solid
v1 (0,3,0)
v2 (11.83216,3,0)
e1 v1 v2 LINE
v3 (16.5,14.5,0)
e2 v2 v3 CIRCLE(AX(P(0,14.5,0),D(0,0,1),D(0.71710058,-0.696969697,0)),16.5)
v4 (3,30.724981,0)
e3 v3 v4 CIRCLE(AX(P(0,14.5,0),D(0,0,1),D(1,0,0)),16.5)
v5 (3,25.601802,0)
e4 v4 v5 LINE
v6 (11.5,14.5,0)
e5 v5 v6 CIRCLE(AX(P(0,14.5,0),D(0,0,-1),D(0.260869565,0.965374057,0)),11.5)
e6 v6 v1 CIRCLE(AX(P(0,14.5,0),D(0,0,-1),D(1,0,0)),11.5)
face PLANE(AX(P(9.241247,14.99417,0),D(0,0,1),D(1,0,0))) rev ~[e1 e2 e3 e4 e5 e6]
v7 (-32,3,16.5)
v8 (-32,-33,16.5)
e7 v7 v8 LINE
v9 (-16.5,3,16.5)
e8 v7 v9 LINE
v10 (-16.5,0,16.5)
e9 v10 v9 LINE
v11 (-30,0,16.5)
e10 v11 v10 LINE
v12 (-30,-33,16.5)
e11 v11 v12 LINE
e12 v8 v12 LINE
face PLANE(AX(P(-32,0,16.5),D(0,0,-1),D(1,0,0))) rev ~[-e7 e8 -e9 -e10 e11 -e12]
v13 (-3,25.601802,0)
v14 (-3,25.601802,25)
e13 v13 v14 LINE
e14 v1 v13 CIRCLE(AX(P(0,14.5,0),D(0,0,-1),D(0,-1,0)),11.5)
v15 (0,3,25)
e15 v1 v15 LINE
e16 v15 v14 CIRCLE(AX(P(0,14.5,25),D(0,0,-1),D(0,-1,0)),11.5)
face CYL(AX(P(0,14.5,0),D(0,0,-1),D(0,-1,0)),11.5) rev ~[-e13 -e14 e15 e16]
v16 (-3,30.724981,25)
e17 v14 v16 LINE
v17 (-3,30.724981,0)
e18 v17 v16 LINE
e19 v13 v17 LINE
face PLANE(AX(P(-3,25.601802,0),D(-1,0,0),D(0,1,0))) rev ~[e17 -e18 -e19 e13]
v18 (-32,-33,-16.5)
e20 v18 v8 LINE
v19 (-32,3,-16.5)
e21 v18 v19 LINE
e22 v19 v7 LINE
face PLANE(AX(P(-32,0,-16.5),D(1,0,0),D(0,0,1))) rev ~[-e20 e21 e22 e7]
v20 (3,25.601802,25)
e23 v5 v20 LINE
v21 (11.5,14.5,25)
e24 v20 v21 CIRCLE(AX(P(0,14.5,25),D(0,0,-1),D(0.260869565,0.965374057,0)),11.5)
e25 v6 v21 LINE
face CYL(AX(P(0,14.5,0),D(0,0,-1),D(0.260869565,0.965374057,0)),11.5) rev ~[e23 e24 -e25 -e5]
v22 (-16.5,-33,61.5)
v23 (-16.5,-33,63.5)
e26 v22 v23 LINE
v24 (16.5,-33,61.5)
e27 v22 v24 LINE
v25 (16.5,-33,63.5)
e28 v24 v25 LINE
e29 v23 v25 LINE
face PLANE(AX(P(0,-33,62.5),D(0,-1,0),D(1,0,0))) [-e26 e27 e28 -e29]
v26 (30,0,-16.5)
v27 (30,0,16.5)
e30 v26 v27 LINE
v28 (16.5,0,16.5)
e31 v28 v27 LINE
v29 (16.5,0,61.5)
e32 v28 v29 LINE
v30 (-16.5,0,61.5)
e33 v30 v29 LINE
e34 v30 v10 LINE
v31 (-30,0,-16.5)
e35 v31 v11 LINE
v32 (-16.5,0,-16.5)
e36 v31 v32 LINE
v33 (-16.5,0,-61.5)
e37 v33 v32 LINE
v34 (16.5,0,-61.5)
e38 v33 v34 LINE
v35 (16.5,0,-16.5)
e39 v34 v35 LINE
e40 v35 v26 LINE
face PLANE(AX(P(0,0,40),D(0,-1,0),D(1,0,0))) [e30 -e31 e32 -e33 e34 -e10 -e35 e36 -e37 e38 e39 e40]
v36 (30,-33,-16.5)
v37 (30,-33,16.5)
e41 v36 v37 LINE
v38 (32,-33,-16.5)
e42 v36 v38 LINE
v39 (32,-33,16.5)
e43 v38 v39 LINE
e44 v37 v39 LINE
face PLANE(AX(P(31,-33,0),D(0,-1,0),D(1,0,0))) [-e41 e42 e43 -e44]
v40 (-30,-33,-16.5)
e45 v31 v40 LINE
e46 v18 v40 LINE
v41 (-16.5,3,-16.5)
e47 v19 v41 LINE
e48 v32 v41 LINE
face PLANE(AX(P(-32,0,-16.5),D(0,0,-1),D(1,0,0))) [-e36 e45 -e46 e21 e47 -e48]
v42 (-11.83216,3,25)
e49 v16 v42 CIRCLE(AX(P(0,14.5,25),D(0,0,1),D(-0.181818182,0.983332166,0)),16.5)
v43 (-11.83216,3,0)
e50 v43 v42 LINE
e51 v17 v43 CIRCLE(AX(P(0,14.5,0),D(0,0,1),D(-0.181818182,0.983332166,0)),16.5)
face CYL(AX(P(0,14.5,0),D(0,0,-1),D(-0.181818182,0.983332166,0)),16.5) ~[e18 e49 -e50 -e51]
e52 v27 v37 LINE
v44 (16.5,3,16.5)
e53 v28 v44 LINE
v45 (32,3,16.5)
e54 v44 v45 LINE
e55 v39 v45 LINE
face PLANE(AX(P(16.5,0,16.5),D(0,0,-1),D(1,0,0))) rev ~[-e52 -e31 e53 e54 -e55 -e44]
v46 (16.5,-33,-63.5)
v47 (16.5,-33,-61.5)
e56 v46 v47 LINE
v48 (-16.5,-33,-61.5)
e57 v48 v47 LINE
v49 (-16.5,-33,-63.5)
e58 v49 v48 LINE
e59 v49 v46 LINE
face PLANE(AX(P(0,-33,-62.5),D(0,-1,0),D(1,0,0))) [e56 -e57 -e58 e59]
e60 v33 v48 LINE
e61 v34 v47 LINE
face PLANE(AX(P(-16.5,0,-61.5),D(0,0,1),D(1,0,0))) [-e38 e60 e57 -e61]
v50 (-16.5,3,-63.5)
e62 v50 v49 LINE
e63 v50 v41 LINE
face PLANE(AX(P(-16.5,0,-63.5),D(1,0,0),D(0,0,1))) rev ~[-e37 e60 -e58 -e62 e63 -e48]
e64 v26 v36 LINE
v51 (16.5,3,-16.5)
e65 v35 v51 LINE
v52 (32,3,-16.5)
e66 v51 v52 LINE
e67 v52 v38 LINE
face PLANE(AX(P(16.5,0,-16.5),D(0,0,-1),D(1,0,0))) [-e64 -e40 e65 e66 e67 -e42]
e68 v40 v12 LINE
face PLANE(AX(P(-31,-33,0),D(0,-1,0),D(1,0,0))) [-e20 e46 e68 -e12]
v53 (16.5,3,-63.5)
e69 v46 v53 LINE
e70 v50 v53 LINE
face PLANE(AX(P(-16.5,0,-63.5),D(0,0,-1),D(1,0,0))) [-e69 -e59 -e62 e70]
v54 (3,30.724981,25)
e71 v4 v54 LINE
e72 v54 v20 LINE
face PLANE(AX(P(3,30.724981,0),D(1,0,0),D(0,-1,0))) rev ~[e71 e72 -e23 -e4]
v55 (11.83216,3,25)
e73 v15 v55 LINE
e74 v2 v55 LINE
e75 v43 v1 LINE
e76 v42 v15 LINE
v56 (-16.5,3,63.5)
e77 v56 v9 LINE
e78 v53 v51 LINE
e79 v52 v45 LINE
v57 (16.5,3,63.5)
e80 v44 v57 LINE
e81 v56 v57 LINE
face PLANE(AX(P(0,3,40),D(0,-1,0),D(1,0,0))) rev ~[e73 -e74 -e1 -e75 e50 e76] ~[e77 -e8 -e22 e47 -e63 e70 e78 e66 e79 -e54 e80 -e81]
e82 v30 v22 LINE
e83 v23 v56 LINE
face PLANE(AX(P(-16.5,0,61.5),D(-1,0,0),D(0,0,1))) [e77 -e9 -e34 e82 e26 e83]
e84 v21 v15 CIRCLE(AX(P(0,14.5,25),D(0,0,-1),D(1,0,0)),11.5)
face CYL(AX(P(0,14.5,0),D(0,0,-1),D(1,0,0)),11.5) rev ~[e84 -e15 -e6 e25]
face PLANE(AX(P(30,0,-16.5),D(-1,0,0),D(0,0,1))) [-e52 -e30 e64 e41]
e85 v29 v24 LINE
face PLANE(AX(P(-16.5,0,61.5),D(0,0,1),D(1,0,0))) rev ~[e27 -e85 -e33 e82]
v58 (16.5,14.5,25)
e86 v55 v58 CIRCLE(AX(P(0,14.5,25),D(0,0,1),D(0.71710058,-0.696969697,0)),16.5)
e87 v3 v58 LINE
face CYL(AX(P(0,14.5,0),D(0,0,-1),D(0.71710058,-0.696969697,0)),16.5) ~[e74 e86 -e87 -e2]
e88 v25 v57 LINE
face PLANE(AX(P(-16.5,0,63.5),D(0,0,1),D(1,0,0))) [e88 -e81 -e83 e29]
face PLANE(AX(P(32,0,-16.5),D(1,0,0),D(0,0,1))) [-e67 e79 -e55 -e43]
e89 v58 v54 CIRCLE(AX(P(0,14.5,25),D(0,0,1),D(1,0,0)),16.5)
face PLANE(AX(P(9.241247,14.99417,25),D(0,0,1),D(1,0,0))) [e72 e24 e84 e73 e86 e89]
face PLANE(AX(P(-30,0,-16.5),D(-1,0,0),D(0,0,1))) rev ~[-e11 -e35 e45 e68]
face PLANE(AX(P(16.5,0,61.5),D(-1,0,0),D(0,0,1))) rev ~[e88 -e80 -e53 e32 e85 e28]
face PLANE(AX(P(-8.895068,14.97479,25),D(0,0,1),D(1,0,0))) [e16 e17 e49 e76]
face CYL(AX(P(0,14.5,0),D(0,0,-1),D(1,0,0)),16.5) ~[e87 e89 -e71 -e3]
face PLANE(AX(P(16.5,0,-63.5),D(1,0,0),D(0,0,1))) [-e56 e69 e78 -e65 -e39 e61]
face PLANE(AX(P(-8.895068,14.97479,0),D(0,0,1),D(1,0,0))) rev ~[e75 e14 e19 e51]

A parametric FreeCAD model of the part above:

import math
import FreeCAD as App
import Part
import Sketcher

V = App.Vector


def add_polygon(sketch, points):
    """Adds a closed chain of lines whose ends are joined by coincident constraints."""
    first, n = sketch.GeometryCount, len(points)
    for a, b in zip(points, points[1:] + points[:1]):
        sketch.addGeometry(Part.LineSegment(App.Vector(*a, 0), App.Vector(*b, 0)), False)
    for i in range(n):
        sketch.addConstraint(Sketcher.Constraint("Coincident", first + i, 2, first + (i + 1) % n, 1))

doc = App.newDocument("Part")
body = doc.addObject("PartDesign::Body", "Body")

# Sketch on XZ plane
sketch1 = doc.addObject("Sketcher::SketchObject", "Sketch")
body.addObject(sketch1)
sketch1.AttachmentSupport = (doc.XZ_Plane, [""])
sketch1.MapMode = "FlatFace"
add_polygon(sketch1, [(-16, 64), (-16, 16), (-32, 16), (-32, -16), (-16, -16), (-16, -64), (16, -64), (16, -16), (32, -16), (32, 16), (16, 16), (16, 64)])  # lines 0-11
sketch1.addConstraint([
    Sketcher.Constraint("Vertical", 0),
    Sketcher.Constraint("Horizontal", 1),
    Sketcher.Constraint("Vertical", 2),
    Sketcher.Constraint("Horizontal", 3),
    Sketcher.Constraint("Vertical", 4),
    Sketcher.Constraint("Horizontal", 5),
    Sketcher.Constraint("Vertical", 6),
    Sketcher.Constraint("Horizontal", 7),
    Sketcher.Constraint("Vertical", 8),
    Sketcher.Constraint("Horizontal", 9),
    Sketcher.Constraint("Vertical", 10),
    Sketcher.Constraint("Horizontal", 11),
    Sketcher.Constraint("Symmetric", 0, 2, 6, 2, -1, 1),
    Sketcher.Constraint("Symmetric", 2, 2, 8, 2, -1, 1),
    Sketcher.Constraint("Symmetric", 4, 2, 10, 2, -1, 1),
    Sketcher.Constraint("Symmetric", 3, 2, 6, 2, -2),
    Sketcher.Constraint("Equal", 11, 2),
    Sketcher.Constraint("DistanceX", 5, 1, 5, 2, 33.0),
    Sketcher.Constraint("DistanceY", 0, 2, 0, 1, 47.0),
    Sketcher.Constraint("DistanceX", 1, 2, 1, 1, 15.5),
])
pad1 = doc.addObject("PartDesign::Pad", "Pad")
body.addObject(pad1)
pad1.Profile = sketch1
pad1.Length = 3
pad1.Reversed = True

# Sketch on XZ plane
sketch2 = doc.addObject("Sketcher::SketchObject", "Sketch001")
body.addObject(sketch2)
sketch2.AttachmentSupport = (doc.XZ_Plane, [""])
sketch2.MapMode = "FlatFace"
add_polygon(sketch2, [(-16.5, 63.5), (-16.5, 61.5), (16.5, 61.5), (16.5, 63.5)])  # lines 0-3
add_polygon(sketch2, [(-32, 16.5), (-32, -16.5), (-30, -16.5), (-30, 16.5)])  # lines 4-7
add_polygon(sketch2, [(-16.5, -61.5), (-16.5, -63.5), (16.5, -63.5), (16.5, -61.5)])  # lines 8-11
add_polygon(sketch2, [(30, 16.5), (30, -16.5), (32, -16.5), (32, 16.5)])  # lines 12-15
sketch2.addConstraint([
    Sketcher.Constraint("Vertical", 0),
    Sketcher.Constraint("Horizontal", 1),
    Sketcher.Constraint("Vertical", 2),
    Sketcher.Constraint("Horizontal", 3),
    Sketcher.Constraint("Vertical", 4),
    Sketcher.Constraint("Horizontal", 5),
    Sketcher.Constraint("Vertical", 6),
    Sketcher.Constraint("Horizontal", 7),
    Sketcher.Constraint("Vertical", 8),
    Sketcher.Constraint("Horizontal", 9),
    Sketcher.Constraint("Vertical", 10),
    Sketcher.Constraint("Horizontal", 11),
    Sketcher.Constraint("Vertical", 12),
    Sketcher.Constraint("Horizontal", 13),
    Sketcher.Constraint("Vertical", 14),
    Sketcher.Constraint("Horizontal", 15),
    Sketcher.Constraint("Symmetric", 2, 2, 8, 2, -1, 1),
    Sketcher.Constraint("Symmetric", 0, 2, 10, 2, -1, 1),
    Sketcher.Constraint("Symmetric", 6, 2, 12, 2, -1, 1),
    Sketcher.Constraint("Symmetric", 4, 2, 14, 2, -1, 1),
    Sketcher.Constraint("Horizontal", 5, 2, 12, 2),
    Sketcher.Constraint("Vertical", 3, 2, 8, 2),
    Sketcher.Constraint("Equal", 15, 0),
    Sketcher.Constraint("Equal", 11, 4),
    Sketcher.Constraint("DistanceX", 1, 1, 1, 2, 33.0),
    Sketcher.Constraint("DistanceX", 5, 1, 5, 2, 2.0),
    Sketcher.Constraint("DistanceX", 4, 2, -1, 1, 32.0),
    Sketcher.Constraint("DistanceY", 4, 2, 0, 2, 78.0),
])
pad2 = doc.addObject("PartDesign::Pad", "Pad001")
body.addObject(pad2)
pad2.Profile = sketch2
pad2.Length = 33

# Sketch on XY plane
sketch3 = doc.addObject("Sketcher::SketchObject", "Sketch002")
body.addObject(sketch3)
sketch3.AttachmentSupport = (doc.XY_Plane, [""])
sketch3.MapMode = "FlatFace"
sketch3.addGeometry([
    Part.LineSegment(V(-12, 3, 0), V(0, 3, 0)),  # 0
    Part.ArcOfCircle(Part.Circle(V(0, 14, 0), V(0, 0, 1), 12), math.radians(105), math.radians(270)),  # 1
    Part.LineSegment(V(-3, 26, 0), V(-3, 31, 0)),  # 2
    Part.ArcOfCircle(Part.Circle(V(0, 14, 0), V(0, 0, 1), 16), math.radians(100), math.radians(224)),  # 3
    Part.ArcOfCircle(Part.Circle(V(0, 14, 0), V(0, 0, 1), 12), math.radians(0), math.radians(75)),  # 4
    Part.ArcOfCircle(Part.Circle(V(0, 14, 0), V(0, 0, 1), 12), math.radians(-90), math.radians(0)),  # 5
    Part.LineSegment(V(0, 3, 0), V(12, 3, 0)),  # 6
    Part.ArcOfCircle(Part.Circle(V(0, 14, 0), V(0, 0, 1), 16), math.radians(-44), math.radians(0)),  # 7
    Part.ArcOfCircle(Part.Circle(V(0, 14, 0), V(0, 0, 1), 16), math.radians(0), math.radians(80)),  # 8
    Part.LineSegment(V(3, 31, 0), V(3, 26, 0)),  # 9
], False)
sketch3.addConstraint([
    Sketcher.Constraint("Tangent", 0, 2, 1, 2),
    Sketcher.Constraint("Coincident", 1, 1, 2, 1),
    Sketcher.Constraint("Coincident", 2, 2, 3, 1),
    Sketcher.Constraint("Coincident", 3, 2, 0, 1),
    Sketcher.Constraint("Tangent", 4, 1, 5, 2),
    Sketcher.Constraint("Tangent", 5, 1, 6, 1),
    Sketcher.Constraint("Coincident", 6, 2, 7, 1),
    Sketcher.Constraint("Tangent", 7, 2, 8, 1),
    Sketcher.Constraint("Coincident", 8, 2, 9, 1),
    Sketcher.Constraint("Coincident", 9, 2, 4, 2),
    Sketcher.Constraint("Horizontal", 0),
    Sketcher.Constraint("Vertical", 2),
    Sketcher.Constraint("Horizontal", 6),
    Sketcher.Constraint("Vertical", 9),
    Sketcher.Constraint("Coincident", 3, 3, 1, 3),
    Sketcher.Constraint("Coincident", 4, 3, 1, 3),
    Sketcher.Constraint("Coincident", 7, 3, 1, 3),
    Sketcher.Constraint("Coincident", 5, 1, 0, 2),
    Sketcher.Constraint("Equal", 3, 7),
    Sketcher.Constraint("Equal", 7, 8),
    Sketcher.Constraint("Symmetric", 2, 2, 8, 2, -2),
    Sketcher.Constraint("Horizontal", 8, 3, 4, 1),
    Sketcher.Constraint("Horizontal", 4, 1, 7, 2),
    Sketcher.Constraint("Radius", 1, 11.5),
    Sketcher.Constraint("Radius", 3, 16.5),
    Sketcher.Constraint("DistanceY", -1, 1, 0, 2, 3.0),
    Sketcher.Constraint("DistanceX", 1, 1, -1, 1, 3.0),
])
pad3 = doc.addObject("PartDesign::Pad", "Pad002")
body.addObject(pad3)
pad3.Profile = sketch3
pad3.Length = 25

doc.recompute()
